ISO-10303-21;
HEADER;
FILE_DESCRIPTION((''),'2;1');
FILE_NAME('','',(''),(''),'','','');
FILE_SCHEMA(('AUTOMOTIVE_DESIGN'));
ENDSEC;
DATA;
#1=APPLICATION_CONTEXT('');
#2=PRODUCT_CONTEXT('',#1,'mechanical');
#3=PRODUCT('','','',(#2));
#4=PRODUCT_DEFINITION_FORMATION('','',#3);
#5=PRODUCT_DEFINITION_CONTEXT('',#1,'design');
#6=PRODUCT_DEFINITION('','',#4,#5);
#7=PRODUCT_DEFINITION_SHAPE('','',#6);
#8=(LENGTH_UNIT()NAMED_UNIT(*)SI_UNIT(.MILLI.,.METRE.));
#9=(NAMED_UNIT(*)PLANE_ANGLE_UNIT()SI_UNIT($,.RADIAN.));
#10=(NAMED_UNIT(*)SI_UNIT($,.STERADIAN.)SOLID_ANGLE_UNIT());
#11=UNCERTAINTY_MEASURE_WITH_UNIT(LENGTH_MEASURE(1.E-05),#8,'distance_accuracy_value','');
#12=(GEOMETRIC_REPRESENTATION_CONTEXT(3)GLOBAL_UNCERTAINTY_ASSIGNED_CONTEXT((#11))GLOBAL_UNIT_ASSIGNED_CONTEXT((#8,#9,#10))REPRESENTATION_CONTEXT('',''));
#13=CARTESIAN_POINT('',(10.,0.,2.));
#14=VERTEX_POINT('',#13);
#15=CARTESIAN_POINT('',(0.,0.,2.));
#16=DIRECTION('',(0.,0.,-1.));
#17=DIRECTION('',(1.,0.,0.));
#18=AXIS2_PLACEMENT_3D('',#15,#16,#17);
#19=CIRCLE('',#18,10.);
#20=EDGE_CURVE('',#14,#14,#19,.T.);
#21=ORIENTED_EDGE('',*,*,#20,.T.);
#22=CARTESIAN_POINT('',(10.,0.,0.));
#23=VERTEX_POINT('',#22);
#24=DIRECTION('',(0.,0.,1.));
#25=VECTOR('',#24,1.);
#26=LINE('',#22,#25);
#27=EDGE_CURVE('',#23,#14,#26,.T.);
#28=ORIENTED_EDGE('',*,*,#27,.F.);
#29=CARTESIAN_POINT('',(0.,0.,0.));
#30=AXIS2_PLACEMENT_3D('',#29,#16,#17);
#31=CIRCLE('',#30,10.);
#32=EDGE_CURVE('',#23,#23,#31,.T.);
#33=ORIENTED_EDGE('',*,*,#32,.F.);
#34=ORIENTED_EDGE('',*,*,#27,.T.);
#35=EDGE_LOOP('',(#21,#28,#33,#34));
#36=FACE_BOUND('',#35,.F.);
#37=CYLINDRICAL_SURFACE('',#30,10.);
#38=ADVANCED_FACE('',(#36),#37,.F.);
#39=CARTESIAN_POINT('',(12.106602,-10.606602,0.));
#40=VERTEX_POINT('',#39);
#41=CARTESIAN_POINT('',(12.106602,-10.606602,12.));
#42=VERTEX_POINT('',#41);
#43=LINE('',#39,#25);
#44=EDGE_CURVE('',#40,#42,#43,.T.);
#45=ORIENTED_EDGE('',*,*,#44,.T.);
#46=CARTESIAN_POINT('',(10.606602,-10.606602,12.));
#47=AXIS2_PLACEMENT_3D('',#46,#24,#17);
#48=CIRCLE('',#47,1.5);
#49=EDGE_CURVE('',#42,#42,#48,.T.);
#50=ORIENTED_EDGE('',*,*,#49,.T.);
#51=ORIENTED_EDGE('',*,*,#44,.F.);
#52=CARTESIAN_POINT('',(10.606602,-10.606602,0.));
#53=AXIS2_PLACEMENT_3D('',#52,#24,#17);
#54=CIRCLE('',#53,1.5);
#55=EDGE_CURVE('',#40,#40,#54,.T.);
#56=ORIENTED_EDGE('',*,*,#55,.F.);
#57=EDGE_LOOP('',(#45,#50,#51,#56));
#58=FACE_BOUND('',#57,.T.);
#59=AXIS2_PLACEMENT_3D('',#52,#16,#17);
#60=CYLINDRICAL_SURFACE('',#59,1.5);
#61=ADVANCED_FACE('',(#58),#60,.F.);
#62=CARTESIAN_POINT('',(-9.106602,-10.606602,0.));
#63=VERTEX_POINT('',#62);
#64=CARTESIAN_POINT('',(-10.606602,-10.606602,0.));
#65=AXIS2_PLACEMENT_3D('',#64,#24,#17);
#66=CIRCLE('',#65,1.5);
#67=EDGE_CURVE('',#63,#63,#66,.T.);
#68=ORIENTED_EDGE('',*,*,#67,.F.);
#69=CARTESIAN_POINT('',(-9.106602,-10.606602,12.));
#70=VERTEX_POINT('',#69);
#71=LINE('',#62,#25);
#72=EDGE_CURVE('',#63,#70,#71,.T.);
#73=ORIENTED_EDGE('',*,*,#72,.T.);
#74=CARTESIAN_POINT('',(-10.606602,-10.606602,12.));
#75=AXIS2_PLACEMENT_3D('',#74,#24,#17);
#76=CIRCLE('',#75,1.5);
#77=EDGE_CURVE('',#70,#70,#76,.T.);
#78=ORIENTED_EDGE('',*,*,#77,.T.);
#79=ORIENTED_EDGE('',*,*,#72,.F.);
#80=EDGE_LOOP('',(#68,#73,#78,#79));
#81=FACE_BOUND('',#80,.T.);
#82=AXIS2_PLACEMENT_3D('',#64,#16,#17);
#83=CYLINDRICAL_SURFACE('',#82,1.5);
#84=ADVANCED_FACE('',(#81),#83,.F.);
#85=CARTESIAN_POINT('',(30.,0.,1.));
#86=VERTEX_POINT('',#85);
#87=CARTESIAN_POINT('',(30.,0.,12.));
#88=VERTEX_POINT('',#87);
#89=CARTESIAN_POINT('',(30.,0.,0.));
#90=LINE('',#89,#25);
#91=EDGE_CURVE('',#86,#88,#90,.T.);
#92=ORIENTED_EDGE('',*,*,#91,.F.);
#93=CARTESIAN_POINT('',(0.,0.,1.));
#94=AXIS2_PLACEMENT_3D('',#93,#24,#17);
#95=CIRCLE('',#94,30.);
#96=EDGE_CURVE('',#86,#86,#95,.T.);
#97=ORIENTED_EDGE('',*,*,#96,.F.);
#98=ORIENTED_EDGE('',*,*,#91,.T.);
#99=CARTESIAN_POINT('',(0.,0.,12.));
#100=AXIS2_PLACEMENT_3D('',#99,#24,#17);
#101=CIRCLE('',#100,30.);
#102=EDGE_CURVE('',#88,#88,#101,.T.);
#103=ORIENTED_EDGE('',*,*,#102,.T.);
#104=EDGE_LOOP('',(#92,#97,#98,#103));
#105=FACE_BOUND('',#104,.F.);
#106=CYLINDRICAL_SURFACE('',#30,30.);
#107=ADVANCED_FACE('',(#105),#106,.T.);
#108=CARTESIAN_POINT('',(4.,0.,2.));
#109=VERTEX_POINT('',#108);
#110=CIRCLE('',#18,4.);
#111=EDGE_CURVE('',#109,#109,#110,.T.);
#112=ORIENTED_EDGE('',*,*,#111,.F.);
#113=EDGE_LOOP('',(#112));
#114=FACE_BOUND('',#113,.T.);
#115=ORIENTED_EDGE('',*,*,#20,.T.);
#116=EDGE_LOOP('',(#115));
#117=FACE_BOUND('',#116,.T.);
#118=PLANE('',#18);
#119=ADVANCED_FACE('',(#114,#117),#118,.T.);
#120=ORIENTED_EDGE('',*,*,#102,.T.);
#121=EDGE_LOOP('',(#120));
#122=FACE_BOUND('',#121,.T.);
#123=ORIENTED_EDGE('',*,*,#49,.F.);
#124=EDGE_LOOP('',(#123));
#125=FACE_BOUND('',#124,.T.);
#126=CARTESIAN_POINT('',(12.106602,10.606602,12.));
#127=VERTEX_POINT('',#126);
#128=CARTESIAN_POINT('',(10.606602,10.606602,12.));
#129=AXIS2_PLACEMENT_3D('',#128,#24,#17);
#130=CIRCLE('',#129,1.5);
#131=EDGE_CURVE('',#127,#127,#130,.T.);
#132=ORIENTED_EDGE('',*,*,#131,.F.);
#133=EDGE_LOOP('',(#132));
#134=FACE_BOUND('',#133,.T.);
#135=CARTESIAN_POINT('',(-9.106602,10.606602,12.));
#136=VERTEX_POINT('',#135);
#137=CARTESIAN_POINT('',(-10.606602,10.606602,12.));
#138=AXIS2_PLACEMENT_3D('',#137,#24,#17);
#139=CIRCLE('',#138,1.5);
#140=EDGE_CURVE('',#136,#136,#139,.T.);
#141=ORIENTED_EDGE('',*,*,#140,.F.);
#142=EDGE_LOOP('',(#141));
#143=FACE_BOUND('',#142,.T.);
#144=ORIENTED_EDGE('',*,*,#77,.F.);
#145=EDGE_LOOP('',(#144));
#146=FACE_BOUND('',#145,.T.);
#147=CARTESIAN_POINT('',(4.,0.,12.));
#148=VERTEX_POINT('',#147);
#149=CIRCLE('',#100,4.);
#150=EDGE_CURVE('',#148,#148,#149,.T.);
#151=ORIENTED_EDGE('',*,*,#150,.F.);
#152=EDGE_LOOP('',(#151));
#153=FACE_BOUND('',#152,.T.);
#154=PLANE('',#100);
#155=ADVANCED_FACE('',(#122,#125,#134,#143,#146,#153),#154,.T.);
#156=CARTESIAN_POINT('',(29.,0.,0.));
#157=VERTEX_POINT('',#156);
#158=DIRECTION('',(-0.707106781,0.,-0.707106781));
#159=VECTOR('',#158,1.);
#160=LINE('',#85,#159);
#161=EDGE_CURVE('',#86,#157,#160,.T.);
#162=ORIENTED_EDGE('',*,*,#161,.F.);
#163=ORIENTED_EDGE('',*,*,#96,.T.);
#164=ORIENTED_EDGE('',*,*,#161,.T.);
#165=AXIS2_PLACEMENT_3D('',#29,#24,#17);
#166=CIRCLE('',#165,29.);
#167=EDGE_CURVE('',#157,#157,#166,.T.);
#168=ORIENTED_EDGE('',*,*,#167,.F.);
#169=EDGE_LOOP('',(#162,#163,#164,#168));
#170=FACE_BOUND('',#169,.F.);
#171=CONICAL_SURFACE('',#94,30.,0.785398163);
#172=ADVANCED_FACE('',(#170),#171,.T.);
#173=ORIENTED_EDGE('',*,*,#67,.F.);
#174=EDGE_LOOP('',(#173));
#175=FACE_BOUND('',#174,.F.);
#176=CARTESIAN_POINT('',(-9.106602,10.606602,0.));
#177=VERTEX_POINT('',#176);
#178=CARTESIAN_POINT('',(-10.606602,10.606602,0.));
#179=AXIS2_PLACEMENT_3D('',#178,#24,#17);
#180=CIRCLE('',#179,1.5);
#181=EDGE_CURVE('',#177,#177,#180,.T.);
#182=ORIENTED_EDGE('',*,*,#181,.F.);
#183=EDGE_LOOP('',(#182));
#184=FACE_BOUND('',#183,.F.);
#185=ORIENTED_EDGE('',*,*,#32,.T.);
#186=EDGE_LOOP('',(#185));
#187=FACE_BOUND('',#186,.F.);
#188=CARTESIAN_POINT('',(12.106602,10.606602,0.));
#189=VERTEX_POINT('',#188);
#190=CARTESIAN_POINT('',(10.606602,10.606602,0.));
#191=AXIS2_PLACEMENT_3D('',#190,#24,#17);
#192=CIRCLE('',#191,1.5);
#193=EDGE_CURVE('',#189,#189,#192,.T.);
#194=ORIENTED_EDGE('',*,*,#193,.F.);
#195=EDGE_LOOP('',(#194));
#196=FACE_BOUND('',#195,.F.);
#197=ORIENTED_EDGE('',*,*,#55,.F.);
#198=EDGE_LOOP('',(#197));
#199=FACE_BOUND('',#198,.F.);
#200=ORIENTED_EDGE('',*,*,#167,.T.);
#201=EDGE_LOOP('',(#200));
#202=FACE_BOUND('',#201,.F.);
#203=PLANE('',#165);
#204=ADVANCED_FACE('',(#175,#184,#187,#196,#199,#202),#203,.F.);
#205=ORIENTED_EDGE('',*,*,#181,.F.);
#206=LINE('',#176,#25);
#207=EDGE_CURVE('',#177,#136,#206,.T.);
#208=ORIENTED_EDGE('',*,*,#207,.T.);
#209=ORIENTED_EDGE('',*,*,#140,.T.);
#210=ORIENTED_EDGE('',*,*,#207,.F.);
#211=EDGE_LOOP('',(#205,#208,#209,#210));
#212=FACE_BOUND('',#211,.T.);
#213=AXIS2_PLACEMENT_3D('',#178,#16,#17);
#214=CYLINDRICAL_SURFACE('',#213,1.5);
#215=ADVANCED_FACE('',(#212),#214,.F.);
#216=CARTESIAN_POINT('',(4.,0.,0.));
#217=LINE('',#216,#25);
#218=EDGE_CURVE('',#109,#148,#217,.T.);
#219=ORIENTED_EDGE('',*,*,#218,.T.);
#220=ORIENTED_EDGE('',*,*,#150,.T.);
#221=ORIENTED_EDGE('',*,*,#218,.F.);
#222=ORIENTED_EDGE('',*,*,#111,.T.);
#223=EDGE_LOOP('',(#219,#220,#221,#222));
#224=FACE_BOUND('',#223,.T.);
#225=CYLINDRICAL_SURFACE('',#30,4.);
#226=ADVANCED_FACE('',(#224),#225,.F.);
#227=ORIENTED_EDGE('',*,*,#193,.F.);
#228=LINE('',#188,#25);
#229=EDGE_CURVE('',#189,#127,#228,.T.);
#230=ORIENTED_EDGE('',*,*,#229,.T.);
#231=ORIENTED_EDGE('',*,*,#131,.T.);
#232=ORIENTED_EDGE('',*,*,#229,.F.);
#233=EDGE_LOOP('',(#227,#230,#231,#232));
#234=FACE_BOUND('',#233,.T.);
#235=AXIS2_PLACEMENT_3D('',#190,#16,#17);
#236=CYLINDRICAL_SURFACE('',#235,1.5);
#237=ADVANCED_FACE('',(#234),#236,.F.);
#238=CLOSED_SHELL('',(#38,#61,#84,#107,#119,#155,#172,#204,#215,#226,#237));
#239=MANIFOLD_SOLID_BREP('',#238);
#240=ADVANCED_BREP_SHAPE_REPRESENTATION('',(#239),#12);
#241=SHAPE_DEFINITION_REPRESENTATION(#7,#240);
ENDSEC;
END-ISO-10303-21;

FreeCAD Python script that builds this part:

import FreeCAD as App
import Part
import Sketcher
from FreeCAD import Vector


def edges_at(feature, points):
    """Names of the edges that pass closest to the given points."""
    edges = feature.Shape.Edges
    near = lambda p: min(range(len(edges)), key=lambda i: edges[i].distToShape(Part.Vertex(*p))[0])
    return sorted({f"Edge{near(p) + 1}" for p in points})

doc = App.newDocument("Part")
body = doc.addObject("PartDesign::Body", "Body")

sketch1 = body.newObject("Sketcher::SketchObject", "Sketch")
sketch1.AttachmentSupport = (doc.getObject("XY_Plane"), [""])
sketch1.MapMode = "FlatFace"
sketch1.addGeometry(Part.Circle(Vector(0, 0, 0), Vector(0, 0, 1), 30), False)
sketch1.addGeometry(Part.Circle(Vector(-10.6, -10.6, 0), Vector(0, 0, 1), 1.5), False)
sketch1.addGeometry(Part.Circle(Vector(0, 0, 0), Vector(0, 0, 1), 4), False)
sketch1.addGeometry(Part.Circle(Vector(10.6, -10.6, 0), Vector(0, 0, 1), 1.5), False)
sketch1.addGeometry(Part.Circle(Vector(-10.6, 10.6, 0), Vector(0, 0, 1), 1.5), False)
sketch1.addGeometry(Part.Circle(Vector(10.6, 10.6, 0), Vector(0, 0, 1), 1.5), False)
sketch1.addConstraint(Sketcher.Constraint("Coincident", 0, 3, -1, 1))
sketch1.addConstraint(Sketcher.Constraint("Coincident", 2, 3, -1, 1))
sketch1.addConstraint(Sketcher.Constraint("Equal", 1, 3))
sketch1.addConstraint(Sketcher.Constraint("Equal", 3, 4))
sketch1.addConstraint(Sketcher.Constraint("Equal", 4, 5))
sketch1.addConstraint(Sketcher.Constraint("Symmetric", 3, 3, 4, 3, -1, 1))
sketch1.addConstraint(Sketcher.Constraint("Symmetric", 1, 3, 5, 3, -1, 1))
sketch1.addConstraint(Sketcher.Constraint("Symmetric", 1, 3, 3, 3, -2))
sketch1.addConstraint(Sketcher.Constraint("Diameter", 0, 60.0))
sketch1.addConstraint(Sketcher.Constraint("Diameter", 1, 3.0))
sketch1.addConstraint(Sketcher.Constraint("Diameter", 2, 8.0))
sketch1.addConstraint(Sketcher.Constraint("DistanceX", 1, 3, -1, 1, 10.606602))
sketch1.addConstraint(Sketcher.Constraint("DistanceY", 1, 3, -1, 1, 10.606602))
pad1 = body.newObject("PartDesign::Pad", "Pad")
pad1.Profile = sketch1
pad1.Length = 12
doc.recompute()

chamfer = body.newObject("PartDesign::Chamfer", "Chamfer")
chamfer.Base = (pad1, edges_at(pad1, [(-30, 0, 0)]))
chamfer.Size = 1

sketch2 = body.newObject("Sketcher::SketchObject", "Sketch001")
sketch2.AttachmentSupport = (doc.getObject("XY_Plane"), [""])
sketch2.MapMode = "FlatFace"
sketch2.addGeometry(Part.Circle(Vector(0, 0, 0), Vector(0, 0, 1), 10), False)
sketch2.addConstraint(Sketcher.Constraint("Coincident", 0, 3, -1, 1))
sketch2.addConstraint(Sketcher.Constraint("Diameter", 0, 20.0))
pocket1 = body.newObject("PartDesign::Pocket", "Pocket")
pocket1.Profile = sketch2
pocket1.Length = 2
pocket1.Reversed = True

doc.recompute()
